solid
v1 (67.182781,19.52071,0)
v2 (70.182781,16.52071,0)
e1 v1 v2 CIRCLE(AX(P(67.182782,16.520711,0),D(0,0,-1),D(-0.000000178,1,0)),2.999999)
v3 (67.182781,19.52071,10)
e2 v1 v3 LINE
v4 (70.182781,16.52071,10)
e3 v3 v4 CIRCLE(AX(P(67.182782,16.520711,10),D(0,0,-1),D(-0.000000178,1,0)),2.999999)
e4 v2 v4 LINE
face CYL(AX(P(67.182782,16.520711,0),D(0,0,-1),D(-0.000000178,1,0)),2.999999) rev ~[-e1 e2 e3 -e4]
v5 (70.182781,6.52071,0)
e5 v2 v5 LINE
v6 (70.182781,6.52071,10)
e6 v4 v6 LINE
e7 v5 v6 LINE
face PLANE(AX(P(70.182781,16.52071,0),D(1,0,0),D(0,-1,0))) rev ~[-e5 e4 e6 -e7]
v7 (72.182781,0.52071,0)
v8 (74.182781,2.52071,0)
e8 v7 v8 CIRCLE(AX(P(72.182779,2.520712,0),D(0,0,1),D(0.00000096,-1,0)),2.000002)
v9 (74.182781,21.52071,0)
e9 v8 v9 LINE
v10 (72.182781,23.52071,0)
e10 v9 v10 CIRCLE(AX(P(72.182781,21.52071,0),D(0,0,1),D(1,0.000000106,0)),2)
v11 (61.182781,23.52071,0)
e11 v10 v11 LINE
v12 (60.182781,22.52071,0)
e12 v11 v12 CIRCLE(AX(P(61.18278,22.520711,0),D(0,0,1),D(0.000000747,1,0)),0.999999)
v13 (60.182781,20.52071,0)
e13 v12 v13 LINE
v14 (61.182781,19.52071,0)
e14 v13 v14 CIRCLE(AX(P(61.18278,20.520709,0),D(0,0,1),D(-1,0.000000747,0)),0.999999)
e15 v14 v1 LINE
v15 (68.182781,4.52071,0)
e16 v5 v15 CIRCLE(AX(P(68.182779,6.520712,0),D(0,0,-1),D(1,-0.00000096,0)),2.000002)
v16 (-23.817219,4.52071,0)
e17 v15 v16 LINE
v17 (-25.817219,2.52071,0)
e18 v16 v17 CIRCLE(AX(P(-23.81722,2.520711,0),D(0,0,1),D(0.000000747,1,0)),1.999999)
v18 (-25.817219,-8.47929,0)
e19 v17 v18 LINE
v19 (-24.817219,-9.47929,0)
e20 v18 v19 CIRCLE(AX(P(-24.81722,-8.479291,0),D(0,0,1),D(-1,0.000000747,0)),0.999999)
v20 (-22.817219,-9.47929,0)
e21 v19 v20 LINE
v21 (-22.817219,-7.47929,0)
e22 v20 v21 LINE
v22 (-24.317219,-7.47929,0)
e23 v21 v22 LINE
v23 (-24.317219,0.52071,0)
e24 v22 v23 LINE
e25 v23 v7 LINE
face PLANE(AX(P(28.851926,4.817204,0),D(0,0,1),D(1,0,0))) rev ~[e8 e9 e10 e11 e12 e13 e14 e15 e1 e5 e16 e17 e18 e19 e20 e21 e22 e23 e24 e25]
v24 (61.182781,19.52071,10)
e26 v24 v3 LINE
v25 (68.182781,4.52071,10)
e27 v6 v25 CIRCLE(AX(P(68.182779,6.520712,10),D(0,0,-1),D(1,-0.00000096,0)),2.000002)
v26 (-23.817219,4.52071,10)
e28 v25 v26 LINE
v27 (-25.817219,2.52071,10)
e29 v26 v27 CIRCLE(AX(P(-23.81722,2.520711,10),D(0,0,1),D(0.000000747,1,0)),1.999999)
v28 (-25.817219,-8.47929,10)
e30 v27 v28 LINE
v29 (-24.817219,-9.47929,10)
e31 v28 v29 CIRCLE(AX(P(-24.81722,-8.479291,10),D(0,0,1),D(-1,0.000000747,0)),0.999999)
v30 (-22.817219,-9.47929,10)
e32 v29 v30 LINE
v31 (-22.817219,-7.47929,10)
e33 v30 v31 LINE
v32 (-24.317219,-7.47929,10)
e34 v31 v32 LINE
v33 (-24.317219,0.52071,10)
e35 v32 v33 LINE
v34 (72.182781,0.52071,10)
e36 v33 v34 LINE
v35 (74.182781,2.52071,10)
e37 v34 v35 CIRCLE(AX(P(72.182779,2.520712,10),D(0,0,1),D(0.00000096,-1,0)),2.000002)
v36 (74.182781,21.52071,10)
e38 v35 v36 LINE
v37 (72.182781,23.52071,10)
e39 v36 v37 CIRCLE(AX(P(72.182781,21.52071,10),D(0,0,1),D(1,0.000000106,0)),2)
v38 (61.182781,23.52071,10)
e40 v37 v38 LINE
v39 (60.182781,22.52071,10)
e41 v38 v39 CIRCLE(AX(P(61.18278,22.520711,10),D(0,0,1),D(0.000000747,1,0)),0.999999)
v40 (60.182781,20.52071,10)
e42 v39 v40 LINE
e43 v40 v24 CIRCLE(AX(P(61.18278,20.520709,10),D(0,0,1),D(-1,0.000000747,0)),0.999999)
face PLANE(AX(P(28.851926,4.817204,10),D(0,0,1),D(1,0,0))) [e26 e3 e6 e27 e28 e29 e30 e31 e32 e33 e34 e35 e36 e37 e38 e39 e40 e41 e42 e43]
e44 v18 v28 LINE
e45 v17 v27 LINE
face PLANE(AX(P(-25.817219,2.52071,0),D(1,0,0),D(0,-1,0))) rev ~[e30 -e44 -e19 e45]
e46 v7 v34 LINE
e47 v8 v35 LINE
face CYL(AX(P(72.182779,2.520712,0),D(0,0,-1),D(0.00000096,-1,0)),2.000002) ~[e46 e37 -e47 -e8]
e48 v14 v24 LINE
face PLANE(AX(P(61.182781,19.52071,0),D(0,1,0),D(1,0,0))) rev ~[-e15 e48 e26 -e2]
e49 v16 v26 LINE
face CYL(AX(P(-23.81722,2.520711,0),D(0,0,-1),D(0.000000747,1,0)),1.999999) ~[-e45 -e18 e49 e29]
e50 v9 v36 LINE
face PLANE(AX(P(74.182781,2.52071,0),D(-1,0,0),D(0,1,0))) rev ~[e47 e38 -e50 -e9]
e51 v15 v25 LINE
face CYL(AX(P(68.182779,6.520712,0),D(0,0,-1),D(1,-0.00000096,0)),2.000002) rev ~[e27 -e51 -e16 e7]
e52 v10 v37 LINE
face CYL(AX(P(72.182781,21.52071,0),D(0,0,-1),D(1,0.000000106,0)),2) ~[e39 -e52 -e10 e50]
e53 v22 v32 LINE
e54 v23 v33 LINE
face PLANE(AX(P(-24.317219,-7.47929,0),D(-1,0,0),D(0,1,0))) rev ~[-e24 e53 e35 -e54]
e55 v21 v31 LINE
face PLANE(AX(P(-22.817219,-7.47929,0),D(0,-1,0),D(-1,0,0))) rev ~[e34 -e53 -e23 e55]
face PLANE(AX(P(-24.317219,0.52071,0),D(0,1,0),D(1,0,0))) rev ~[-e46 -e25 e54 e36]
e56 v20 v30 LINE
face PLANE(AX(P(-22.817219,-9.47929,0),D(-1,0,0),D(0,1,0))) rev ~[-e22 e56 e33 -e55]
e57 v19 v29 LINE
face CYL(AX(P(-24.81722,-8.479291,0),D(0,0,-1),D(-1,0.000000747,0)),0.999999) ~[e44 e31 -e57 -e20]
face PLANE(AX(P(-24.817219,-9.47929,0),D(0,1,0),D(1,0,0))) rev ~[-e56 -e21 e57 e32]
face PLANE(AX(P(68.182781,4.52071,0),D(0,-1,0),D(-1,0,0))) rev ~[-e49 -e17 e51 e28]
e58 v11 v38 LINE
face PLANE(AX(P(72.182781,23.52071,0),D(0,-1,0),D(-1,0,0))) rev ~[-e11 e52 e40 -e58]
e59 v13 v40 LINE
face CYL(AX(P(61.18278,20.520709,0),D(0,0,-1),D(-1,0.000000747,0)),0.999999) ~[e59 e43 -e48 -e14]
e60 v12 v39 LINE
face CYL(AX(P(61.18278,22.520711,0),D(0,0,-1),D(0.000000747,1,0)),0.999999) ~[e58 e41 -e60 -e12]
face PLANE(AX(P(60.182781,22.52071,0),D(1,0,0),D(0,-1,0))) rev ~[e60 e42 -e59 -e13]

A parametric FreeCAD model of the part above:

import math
import FreeCAD as App
import Part
import Sketcher
from FreeCAD import Vector

doc = App.newDocument("Part")
body = doc.addObject("PartDesign::Body", "Body")

sketch1 = body.newObject("Sketcher::SketchObject", "Sketch")
sketch1.AttachmentSupport = (doc.getObject("XY_Plane"), [""])
sketch1.MapMode = "FlatFace"
sketch1.addGeometry(Part.LineSegment(Vector(68.182781, 4.52071, 0), Vector(-23.817219, 4.52071, 0)), False)
sketch1.addGeometry(Part.ArcOfCircle(Part.Circle(Vector(-23.81722, 2.520711, 0), Vector(0, 0, 1), 1.999999), math.radians(89.999957), math.radians(180.000043)), False)
sketch1.addGeometry(Part.LineSegment(Vector(-25.817219, 2.52071, 0), Vector(-25.817219, -8.47929, 0)), False)
sketch1.addGeometry(Part.ArcOfCircle(Part.Circle(Vector(-24.81722, -8.479291, 0), Vector(0, 0, 1), 0.999999), math.radians(179.999957), math.radians(270.000043)), False)
sketch1.addGeometry(Part.LineSegment(Vector(-24.817219, -9.47929, 0), Vector(-22.817219, -9.47929, 0)), False)
sketch1.addGeometry(Part.LineSegment(Vector(-22.817219, -9.47929, 0), Vector(-22.817219, -7.47929, 0)), False)
sketch1.addGeometry(Part.LineSegment(Vector(-22.817219, -7.47929, 0), Vector(-24.317219, -7.47929, 0)), False)
sketch1.addGeometry(Part.LineSegment(Vector(-24.317219, -7.47929, 0), Vector(-24.317219, 0.52071, 0)), False)
sketch1.addGeometry(Part.LineSegment(Vector(-24.317219, 0.52071, 0), Vector(72.182781, 0.52071, 0)), False)
sketch1.addGeometry(Part.ArcOfCircle(Part.Circle(Vector(72.182779, 2.520712, 0), Vector(0, 0, 1), 2.000002), math.radians(-89.999945), math.radians(-0.000055)), False)
sketch1.addGeometry(Part.LineSegment(Vector(74.182781, 2.52071, 0), Vector(74.182781, 21.52071, 0)), False)
sketch1.addGeometry(Part.ArcOfCircle(Part.Circle(Vector(72.182781, 21.52071, 0), Vector(0, 0, 1), 2), math.radians(0.000006), math.radians(89.999994)), False)
sketch1.addGeometry(Part.LineSegment(Vector(72.182781, 23.52071, 0), Vector(61.182781, 23.52071, 0)), False)
sketch1.addGeometry(Part.ArcOfCircle(Part.Circle(Vector(61.18278, 22.520711, 0), Vector(0, 0, 1), 0.999999), math.radians(89.999957), math.radians(180.000043)), False)
sketch1.addGeometry(Part.LineSegment(Vector(60.182781, 22.52071, 0), Vector(60.182781, 20.52071, 0)), False)
sketch1.addGeometry(Part.ArcOfCircle(Part.Circle(Vector(61.18278, 20.520709, 0), Vector(0, 0, 1), 0.999999), math.radians(179.999957), math.radians(270.000043)), False)
sketch1.addGeometry(Part.LineSegment(Vector(61.182781, 19.52071, 0), Vector(67.182781, 19.52071, 0)), False)
sketch1.addGeometry(Part.ArcOfCircle(Part.Circle(Vector(67.182782, 16.520711, 0), Vector(0, 0, 1), 2.999999), math.radians(-0.00001), math.radians(90.00001)), False)
sketch1.addGeometry(Part.LineSegment(Vector(70.182781, 16.52071, 0), Vector(70.182781, 6.52071, 0)), False)
sketch1.addGeometry(Part.ArcOfCircle(Part.Circle(Vector(68.182779, 6.520712, 0), Vector(0, 0, 1), 2.000002), math.radians(-89.999945), math.radians(-0.000055)), False)
sketch1.addConstraint(Sketcher.Constraint("Tangent", 0, 2, 1, 1))
sketch1.addConstraint(Sketcher.Constraint("Tangent", 1, 2, 2, 1))
sketch1.addConstraint(Sketcher.Constraint("Tangent", 2, 2, 3, 1))
sketch1.addConstraint(Sketcher.Constraint("Tangent", 3, 2, 4, 1))
sketch1.addConstraint(Sketcher.Constraint("Coincident", 4, 2, 5, 1))
sketch1.addConstraint(Sketcher.Constraint("Coincident", 5, 2, 6, 1))
sketch1.addConstraint(Sketcher.Constraint("Coincident", 6, 2, 7, 1))
sketch1.addConstraint(Sketcher.Constraint("Coincident", 7, 2, 8, 1))
sketch1.addConstraint(Sketcher.Constraint("Tangent", 8, 2, 9, 1))
sketch1.addConstraint(Sketcher.Constraint("Tangent", 9, 2, 10, 1))
sketch1.addConstraint(Sketcher.Constraint("Tangent", 10, 2, 11, 1))
sketch1.addConstraint(Sketcher.Constraint("Tangent", 11, 2, 12, 1))
sketch1.addConstraint(Sketcher.Constraint("Tangent", 12, 2, 13, 1))
sketch1.addConstraint(Sketcher.Constraint("Tangent", 13, 2, 14, 1))
sketch1.addConstraint(Sketcher.Constraint("Tangent", 14, 2, 15, 1))
sketch1.addConstraint(Sketcher.Constraint("Tangent", 15, 2, 16, 1))
sketch1.addConstraint(Sketcher.Constraint("Tangent", 16, 2, 17, 2))
sketch1.addConstraint(Sketcher.Constraint("Tangent", 17, 1, 18, 1))
sketch1.addConstraint(Sketcher.Constraint("Tangent", 18, 2, 19, 2))
sketch1.addConstraint(Sketcher.Constraint("Tangent", 19, 1, 0, 1))
sketch1.addConstraint(Sketcher.Constraint("Horizontal", 0))
sketch1.addConstraint(Sketcher.Constraint("Vertical", 2))
sketch1.addConstraint(Sketcher.Constraint("Horizontal", 4))
sketch1.addConstraint(Sketcher.Constraint("Vertical", 5))
sketch1.addConstraint(Sketcher.Constraint("Horizontal", 6))
sketch1.addConstraint(Sketcher.Constraint("Vertical", 7))
sketch1.addConstraint(Sketcher.Constraint("Horizontal", 8))
sketch1.addConstraint(Sketcher.Constraint("Vertical", 10))
sketch1.addConstraint(Sketcher.Constraint("Horizontal", 12))
sketch1.addConstraint(Sketcher.Constraint("Vertical", 14))
sketch1.addConstraint(Sketcher.Constraint("Horizontal", 16))
sketch1.addConstraint(Sketcher.Constraint("Vertical", 18))
sketch1.addConstraint(Sketcher.Constraint("Equal", 9, 11))
sketch1.addConstraint(Sketcher.Constraint("Equal", 3, 13))
sketch1.addConstraint(Sketcher.Constraint("Equal", 13, 15))
sketch1.addConstraint(Sketcher.Constraint("Equal", 11, 19))
sketch1.addConstraint(Sketcher.Constraint("Horizontal", 1, 3, 9, 3))
sketch1.addConstraint(Sketcher.Constraint("Equal", 12, 2))
sketch1.addConstraint(Sketcher.Constraint("Equal", 4, 5))
sketch1.addConstraint(Sketcher.Constraint("Equal", 5, 14))
sketch1.addConstraint(Sketcher.Constraint("Radius", 1, 1.999999))
sketch1.addConstraint(Sketcher.Constraint("Radius", 3, 0.999999))
sketch1.addConstraint(Sketcher.Constraint("Radius", 9, 2.000002))
sketch1.addConstraint(Sketcher.Constraint("Radius", 17, 2.999999))
sketch1.addConstraint(Sketcher.Constraint("DistanceX", 0, 2, 0, 1, 92.0))
sketch1.addConstraint(Sketcher.Constraint("DistanceX", 4, 1, 4, 2, 2.0))
sketch1.addConstraint(Sketcher.Constraint("DistanceX", 12, 2, 12, 1, 11.0))
sketch1.addConstraint(Sketcher.Constraint("DistanceX", 16, 1, 16, 2, 6.0))
sketch1.addConstraint(Sketcher.Constraint("DistanceY", 10, 1, 10, 2, 19.0))
sketch1.addConstraint(Sketcher.Constraint("DistanceX", 6, 2, 6, 1, 1.5))
sketch1.addConstraint(Sketcher.Constraint("DistanceX", 1, 3, -1, 1, 23.81722))
sketch1.addConstraint(Sketcher.Constraint("DistanceY", -1, 1, 1, 3, 2.520711))
pad1 = body.newObject("PartDesign::Pad", "Pad")
pad1.Profile = sketch1
pad1.Length = 10

doc.recompute()
